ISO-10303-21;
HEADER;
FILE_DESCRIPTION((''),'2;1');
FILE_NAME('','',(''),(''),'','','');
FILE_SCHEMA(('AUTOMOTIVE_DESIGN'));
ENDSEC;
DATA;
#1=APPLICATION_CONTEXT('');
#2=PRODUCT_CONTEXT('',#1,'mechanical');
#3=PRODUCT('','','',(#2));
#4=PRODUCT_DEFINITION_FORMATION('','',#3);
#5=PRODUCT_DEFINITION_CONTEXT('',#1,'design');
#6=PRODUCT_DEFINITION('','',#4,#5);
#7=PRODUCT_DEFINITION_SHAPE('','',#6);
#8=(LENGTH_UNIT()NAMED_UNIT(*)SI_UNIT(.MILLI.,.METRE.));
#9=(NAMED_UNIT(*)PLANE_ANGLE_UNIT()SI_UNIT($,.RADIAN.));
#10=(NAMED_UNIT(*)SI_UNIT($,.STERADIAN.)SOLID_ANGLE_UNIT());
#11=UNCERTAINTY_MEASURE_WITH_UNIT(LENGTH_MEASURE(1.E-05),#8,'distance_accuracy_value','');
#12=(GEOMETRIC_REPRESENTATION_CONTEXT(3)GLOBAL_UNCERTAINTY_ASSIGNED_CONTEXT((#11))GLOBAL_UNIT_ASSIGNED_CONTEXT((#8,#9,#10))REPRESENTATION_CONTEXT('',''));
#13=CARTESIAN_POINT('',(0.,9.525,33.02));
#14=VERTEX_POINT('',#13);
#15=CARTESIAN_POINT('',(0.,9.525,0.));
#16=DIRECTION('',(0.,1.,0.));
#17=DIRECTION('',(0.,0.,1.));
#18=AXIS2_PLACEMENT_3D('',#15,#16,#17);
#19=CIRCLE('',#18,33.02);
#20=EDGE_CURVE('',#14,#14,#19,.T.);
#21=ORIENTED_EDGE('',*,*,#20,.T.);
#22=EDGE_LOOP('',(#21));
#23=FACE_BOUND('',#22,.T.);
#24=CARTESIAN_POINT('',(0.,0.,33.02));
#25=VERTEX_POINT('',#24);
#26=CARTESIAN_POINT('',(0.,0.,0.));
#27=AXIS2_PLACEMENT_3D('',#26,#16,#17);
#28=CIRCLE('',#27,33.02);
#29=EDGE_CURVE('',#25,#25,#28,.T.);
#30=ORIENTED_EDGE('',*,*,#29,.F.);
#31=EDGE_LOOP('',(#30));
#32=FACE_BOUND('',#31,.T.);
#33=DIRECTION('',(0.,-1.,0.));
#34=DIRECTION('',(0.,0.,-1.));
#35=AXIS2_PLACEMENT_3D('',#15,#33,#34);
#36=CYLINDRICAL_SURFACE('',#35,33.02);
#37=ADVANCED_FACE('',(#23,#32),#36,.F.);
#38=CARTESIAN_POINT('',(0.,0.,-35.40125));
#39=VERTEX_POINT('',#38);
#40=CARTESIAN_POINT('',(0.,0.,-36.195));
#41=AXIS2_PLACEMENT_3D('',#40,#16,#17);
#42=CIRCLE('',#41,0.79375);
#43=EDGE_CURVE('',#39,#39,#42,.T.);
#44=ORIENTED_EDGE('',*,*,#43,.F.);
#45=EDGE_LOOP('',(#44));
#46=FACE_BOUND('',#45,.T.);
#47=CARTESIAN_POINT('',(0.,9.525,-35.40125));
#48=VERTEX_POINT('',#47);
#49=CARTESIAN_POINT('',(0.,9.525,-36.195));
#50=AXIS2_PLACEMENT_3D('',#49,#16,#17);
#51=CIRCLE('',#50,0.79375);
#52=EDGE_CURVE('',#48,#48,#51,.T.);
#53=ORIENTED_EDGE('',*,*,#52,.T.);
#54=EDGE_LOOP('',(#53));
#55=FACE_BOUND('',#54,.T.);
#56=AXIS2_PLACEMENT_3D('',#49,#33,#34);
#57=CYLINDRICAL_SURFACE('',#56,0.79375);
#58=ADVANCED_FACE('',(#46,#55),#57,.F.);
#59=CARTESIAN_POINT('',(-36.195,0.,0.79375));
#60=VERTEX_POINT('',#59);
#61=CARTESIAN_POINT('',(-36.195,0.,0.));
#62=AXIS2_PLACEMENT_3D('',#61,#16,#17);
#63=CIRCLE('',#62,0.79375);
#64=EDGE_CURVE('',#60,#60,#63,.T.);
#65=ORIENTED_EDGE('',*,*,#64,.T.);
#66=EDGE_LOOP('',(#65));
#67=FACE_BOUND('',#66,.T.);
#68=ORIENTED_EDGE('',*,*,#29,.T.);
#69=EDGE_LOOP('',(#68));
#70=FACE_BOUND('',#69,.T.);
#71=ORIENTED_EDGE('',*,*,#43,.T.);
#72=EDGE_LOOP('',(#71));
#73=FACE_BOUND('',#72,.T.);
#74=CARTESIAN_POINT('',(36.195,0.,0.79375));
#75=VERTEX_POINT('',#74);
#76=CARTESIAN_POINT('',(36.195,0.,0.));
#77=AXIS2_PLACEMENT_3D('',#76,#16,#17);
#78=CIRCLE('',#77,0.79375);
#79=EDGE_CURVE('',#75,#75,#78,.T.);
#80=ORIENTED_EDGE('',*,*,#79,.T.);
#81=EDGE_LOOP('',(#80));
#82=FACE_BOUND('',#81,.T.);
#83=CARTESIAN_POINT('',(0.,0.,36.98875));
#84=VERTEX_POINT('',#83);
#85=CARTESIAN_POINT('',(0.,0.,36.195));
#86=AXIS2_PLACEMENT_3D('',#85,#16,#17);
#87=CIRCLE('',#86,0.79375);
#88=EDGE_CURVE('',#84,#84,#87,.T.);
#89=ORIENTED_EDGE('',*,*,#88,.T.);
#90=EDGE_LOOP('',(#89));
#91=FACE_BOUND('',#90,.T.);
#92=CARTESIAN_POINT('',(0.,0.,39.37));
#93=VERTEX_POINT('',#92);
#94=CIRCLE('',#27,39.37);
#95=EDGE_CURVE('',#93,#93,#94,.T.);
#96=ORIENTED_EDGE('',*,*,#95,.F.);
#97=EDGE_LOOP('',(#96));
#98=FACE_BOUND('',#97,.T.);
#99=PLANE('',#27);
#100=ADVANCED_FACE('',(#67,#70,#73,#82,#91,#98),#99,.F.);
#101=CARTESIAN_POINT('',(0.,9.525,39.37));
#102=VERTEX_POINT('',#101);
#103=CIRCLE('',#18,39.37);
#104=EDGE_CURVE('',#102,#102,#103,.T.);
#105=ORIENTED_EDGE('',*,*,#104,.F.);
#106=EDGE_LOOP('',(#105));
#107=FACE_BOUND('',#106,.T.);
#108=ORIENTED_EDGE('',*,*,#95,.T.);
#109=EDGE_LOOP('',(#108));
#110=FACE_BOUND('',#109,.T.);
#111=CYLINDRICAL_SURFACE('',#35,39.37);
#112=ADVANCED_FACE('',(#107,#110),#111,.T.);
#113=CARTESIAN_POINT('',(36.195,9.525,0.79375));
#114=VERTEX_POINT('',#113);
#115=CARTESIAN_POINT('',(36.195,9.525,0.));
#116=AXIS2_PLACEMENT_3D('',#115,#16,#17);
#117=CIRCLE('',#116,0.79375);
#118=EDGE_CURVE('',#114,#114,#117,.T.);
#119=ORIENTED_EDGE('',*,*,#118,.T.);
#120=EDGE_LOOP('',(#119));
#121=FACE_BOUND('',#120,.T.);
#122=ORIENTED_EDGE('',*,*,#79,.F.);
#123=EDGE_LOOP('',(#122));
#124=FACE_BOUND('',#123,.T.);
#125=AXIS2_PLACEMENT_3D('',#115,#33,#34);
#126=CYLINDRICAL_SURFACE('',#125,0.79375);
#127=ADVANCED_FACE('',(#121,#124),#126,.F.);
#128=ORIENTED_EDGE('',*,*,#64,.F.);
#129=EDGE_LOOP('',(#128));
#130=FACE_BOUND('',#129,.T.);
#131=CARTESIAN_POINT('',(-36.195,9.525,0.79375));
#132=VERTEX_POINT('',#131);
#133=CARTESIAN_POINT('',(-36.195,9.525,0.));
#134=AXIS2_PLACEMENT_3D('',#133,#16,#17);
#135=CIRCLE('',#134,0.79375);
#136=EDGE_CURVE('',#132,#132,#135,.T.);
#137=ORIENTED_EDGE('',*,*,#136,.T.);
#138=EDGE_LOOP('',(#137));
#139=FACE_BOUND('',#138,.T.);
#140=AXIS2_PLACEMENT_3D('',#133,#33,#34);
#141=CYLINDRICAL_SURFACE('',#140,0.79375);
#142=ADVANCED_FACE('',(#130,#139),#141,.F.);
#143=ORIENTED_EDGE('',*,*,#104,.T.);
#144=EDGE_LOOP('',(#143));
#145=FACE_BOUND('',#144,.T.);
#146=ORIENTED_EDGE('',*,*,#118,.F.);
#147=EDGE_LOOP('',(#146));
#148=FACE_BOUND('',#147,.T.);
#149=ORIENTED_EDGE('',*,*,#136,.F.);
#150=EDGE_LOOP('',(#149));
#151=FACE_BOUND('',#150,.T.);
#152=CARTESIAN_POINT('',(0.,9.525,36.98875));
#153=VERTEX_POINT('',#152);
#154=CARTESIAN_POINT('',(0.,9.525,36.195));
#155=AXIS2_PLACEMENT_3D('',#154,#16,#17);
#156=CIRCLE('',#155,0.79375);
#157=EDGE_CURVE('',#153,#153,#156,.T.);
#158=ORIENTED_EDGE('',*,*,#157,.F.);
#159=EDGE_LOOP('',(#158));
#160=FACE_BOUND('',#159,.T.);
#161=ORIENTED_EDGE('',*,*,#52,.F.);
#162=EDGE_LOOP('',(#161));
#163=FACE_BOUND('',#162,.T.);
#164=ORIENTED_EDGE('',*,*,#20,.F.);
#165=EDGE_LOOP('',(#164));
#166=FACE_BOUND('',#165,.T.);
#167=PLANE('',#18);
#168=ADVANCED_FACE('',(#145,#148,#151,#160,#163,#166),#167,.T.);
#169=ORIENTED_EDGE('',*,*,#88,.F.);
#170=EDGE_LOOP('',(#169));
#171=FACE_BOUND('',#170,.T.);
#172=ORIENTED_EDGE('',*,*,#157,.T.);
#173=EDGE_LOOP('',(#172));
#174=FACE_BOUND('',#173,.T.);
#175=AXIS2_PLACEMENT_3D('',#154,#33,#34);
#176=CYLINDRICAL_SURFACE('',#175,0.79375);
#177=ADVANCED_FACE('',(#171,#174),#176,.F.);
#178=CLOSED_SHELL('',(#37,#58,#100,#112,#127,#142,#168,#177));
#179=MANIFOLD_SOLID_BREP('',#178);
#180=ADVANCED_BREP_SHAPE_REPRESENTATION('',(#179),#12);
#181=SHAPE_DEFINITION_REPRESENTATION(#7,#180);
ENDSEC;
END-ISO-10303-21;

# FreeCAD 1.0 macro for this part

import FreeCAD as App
import Part
import Sketcher

V = App.Vector
Q = App.Units.Quantity

doc = App.newDocument("Part")
body = doc.addObject("PartDesign::Body", "Body")

# Sketch on XZ plane
sketch1 = body.newObject("Sketcher::SketchObject", "Sketch")
sketch1.AttachmentSupport = (doc.getObject("XZ_Plane"), [""])
sketch1.MapMode = "FlatFace"
sketch1.addGeometry([
    Part.Circle(V(0, 0, 0), V(0, 0, 1), 39.4),  # 0
    Part.Circle(V(0, 36.2, 0), V(0, 0, 1), 0.8),  # 1
    Part.Circle(V(-36.2, 0, 0), V(0, 0, 1), 0.8),  # 2
    Part.Circle(V(0, 0, 0), V(0, 0, 1), 33),  # 3
    Part.Circle(V(36.2, 0, 0), V(0, 0, 1), 0.8),  # 4
    Part.Circle(V(0, -36.2, 0), V(0, 0, 1), 0.8),  # 5
], False)
sketch1.addConstraint([
    Sketcher.Constraint("Coincident", 0, 3, -1, 1),
    Sketcher.Constraint("Coincident", 3, 3, -1, 1),
    Sketcher.Constraint("Equal", 1, 2),
    Sketcher.Constraint("Equal", 2, 4),
    Sketcher.Constraint("Equal", 4, 5),
    Sketcher.Constraint("Symmetric", 2, 3, 4, 3, -1, 1),
    Sketcher.Constraint("Symmetric", 1, 3, 5, 3, -1, 1),
    Sketcher.Constraint("PointOnObject", 1, 3, -2),
    Sketcher.Constraint("PointOnObject", 2, 3, -1),
    Sketcher.Constraint("Diameter", 0, Q("3.1 in")),
    Sketcher.Constraint("Diameter", 3, Q("2.6 in")),
    Sketcher.Constraint("Diameter", 1, Q("0.0625 in")),
    Sketcher.Constraint("DistanceX", 2, 3, 4, 3, Q("2.85 in")),
    Sketcher.Constraint("DistanceY", 5, 3, 1, 3, Q("2.85 in")),
])
pad1 = body.newObject("PartDesign::Pad", "Pad")
pad1.Profile = sketch1
pad1.Length = Q("0.375 in")
pad1.Reversed = True

doc.recompute()
